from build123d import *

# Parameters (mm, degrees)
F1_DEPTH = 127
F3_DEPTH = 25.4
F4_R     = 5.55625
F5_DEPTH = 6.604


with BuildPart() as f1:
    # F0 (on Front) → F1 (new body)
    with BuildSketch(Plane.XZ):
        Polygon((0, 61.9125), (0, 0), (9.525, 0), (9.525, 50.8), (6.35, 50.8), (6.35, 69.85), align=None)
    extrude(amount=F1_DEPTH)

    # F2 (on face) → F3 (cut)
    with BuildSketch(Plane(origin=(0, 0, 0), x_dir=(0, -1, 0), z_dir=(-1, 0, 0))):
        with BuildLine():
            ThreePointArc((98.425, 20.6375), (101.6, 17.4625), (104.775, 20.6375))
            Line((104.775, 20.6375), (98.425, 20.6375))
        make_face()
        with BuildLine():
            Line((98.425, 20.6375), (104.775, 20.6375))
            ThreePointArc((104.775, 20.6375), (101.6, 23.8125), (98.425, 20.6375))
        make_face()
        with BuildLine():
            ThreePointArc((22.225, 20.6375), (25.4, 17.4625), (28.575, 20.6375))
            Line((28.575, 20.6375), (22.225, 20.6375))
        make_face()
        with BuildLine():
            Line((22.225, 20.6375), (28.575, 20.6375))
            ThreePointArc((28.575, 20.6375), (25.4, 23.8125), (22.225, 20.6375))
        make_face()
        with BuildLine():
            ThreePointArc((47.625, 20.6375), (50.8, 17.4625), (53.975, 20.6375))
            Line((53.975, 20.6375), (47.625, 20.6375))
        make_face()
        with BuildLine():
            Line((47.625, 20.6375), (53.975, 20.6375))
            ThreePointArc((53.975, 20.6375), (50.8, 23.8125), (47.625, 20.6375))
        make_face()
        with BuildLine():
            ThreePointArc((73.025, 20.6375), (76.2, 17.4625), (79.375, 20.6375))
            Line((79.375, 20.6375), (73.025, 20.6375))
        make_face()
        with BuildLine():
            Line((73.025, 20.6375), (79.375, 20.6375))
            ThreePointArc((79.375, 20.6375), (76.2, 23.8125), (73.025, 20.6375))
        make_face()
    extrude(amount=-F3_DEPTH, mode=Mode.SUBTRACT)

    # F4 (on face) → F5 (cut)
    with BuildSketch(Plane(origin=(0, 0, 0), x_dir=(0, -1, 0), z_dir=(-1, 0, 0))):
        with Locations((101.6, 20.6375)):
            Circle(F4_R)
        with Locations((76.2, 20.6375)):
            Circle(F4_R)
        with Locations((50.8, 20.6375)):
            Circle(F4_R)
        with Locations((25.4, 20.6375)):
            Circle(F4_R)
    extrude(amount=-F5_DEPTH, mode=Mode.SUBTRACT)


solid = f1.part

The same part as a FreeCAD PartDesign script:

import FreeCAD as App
import Part
import Sketcher

V = App.Vector
Q = App.Units.Quantity

doc = App.newDocument("Part")
body = doc.addObject("PartDesign::Body", "Body")

sketch1 = body.newObject("Sketcher::SketchObject", "Sketch")
sketch1.AttachmentSupport = (doc.getObject("XZ_Plane"), [""])
sketch1.MapMode = "FlatFace"
sketch1.addGeometry([
    Part.LineSegment(V(0, 61.9, 0), V(0, 0, 0)),
    Part.LineSegment(V(0, 0, 0), V(9.5, 0, 0)),
    Part.LineSegment(V(9.5, 0, 0), V(9.5, 50.8, 0)),
    Part.LineSegment(V(9.5, 50.8, 0), V(6.3, 50.8, 0)),
    Part.LineSegment(V(6.3, 50.8, 0), V(6.3, 69.8, 0)),
    Part.LineSegment(V(6.3, 69.8, 0), V(0, 61.9, 0)),
], False)
sketch1.addConstraint([
    Sketcher.Constraint("Coincident", 0, 2, 1, 1),
    Sketcher.Constraint("Coincident", 1, 2, 2, 1),
    Sketcher.Constraint("Coincident", 2, 2, 3, 1),
    Sketcher.Constraint("Coincident", 3, 2, 4, 1),
    Sketcher.Constraint("Coincident", 4, 2, 5, 1),
    Sketcher.Constraint("Coincident", 5, 2, 0, 1),
    Sketcher.Constraint("Vertical", 0),
    Sketcher.Constraint("Horizontal", 1),
    Sketcher.Constraint("Vertical", 2),
    Sketcher.Constraint("Horizontal", 3),
    Sketcher.Constraint("Vertical", 4),
    Sketcher.Constraint("Coincident", 0, 2, -1, 1),
    Sketcher.Constraint("DistanceY", 2, 1, 2, 2, Q("2 in")),
    Sketcher.Constraint("DistanceY", 4, 1, 4, 2, Q("0.75 in")),
    Sketcher.Constraint("DistanceX", 1, 1, 1, 2, Q("0.375 in")),
    Sketcher.Constraint("DistanceX", 3, 2, 3, 1, Q("0.125 in")),
    Sketcher.Constraint("DistanceY", 0, 2, 0, 1, Q("2.4375 in")),
])
pad1 = body.newObject("PartDesign::Pad", "Pad")
pad1.Profile = sketch1
pad1.Length = Q("5 in")

sketch2 = body.newObject("Sketcher::SketchObject", "Sketch001")
sketch2.AttachmentSupport = (doc.getObject("YZ_Plane"), [""])
sketch2.MapMode = "FlatFace"
sketch2.addGeometry([
    Part.Circle(V(-101.6, 20.6, 0), V(0, 0, 1), 3.2),
    Part.Circle(V(-25.4, 20.6, 0), V(0, 0, 1), 3.2),
    Part.Circle(V(-50.8, 20.6, 0), V(0, 0, 1), 3.2),
    Part.Circle(V(-76.2, 20.6, 0), V(0, 0, 1), 3.2),
], False)
sketch2.addConstraint([
    Sketcher.Constraint("Equal", 0, 1),
    Sketcher.Constraint("Equal", 1, 2),
    Sketcher.Constraint("Equal", 2, 3),
    Sketcher.Constraint("Horizontal", 0, 3, 1, 3),
    Sketcher.Constraint("Horizontal", 1, 3, 2, 3),
    Sketcher.Constraint("Horizontal", 2, 3, 3, 3),
    Sketcher.Constraint("Diameter", 0, Q("0.25 in")),
    Sketcher.Constraint("DistanceX", 0, 3, -1, 1, Q("4 in")),
    Sketcher.Constraint("DistanceX", 1, 3, -1, 1, Q("1 in")),
    Sketcher.Constraint("DistanceX", 2, 3, -1, 1, Q("2 in")),
    Sketcher.Constraint("DistanceX", 3, 3, -1, 1, Q("3 in")),
    Sketcher.Constraint("DistanceY", -1, 1, 0, 3, Q("0.8125 in")),
])
pocket1 = body.newObject("PartDesign::Pocket", "Pocket")
pocket1.Profile = sketch2
pocket1.Length = Q("1 in")
pocket1.Reversed = True

sketch3 = body.newObject("Sketcher::SketchObject", "Sketch002")
sketch3.AttachmentSupport = (doc.getObject("YZ_Plane"), [""])
sketch3.MapMode = "FlatFace"
sketch3.addGeometry([
    Part.Circle(V(-102, 21, 0), V(0, 0, 1), 6),
    Part.Circle(V(-76, 21, 0), V(0, 0, 1), 6),
    Part.Circle(V(-51, 21, 0), V(0, 0, 1), 6),
    Part.Circle(V(-25, 21, 0), V(0, 0, 1), 6),
], False)
sketch3.addConstraint([
    Sketcher.Constraint("Equal", 0, 1),
    Sketcher.Constraint("Equal", 1, 2),
    Sketcher.Constraint("Equal", 2, 3),
    Sketcher.Constraint("Horizontal", 0, 3, 1, 3),
    Sketcher.Constraint("Horizontal", 1, 3, 2, 3),
    Sketcher.Constraint("Horizontal", 2, 3, 3, 3),
    Sketcher.Constraint("Diameter", 0, Q("0.4375 in")),
    Sketcher.Constraint("DistanceX", 0, 3, -1, 1, Q("4 in")),
    Sketcher.Constraint("DistanceX", 1, 3, -1, 1, Q("3 in")),
    Sketcher.Constraint("DistanceX", 2, 3, -1, 1, Q("2 in")),
    Sketcher.Constraint("DistanceX", 3, 3, -1, 1, Q("1 in")),
    Sketcher.Constraint("DistanceY", -1, 1, 0, 3, Q("0.8125 in")),
])
pocket2 = body.newObject("PartDesign::Pocket", "Pocket001")
pocket2.Profile = sketch3
pocket2.Length = Q("0.26 in")
pocket2.Reversed = True

doc.recompute()
